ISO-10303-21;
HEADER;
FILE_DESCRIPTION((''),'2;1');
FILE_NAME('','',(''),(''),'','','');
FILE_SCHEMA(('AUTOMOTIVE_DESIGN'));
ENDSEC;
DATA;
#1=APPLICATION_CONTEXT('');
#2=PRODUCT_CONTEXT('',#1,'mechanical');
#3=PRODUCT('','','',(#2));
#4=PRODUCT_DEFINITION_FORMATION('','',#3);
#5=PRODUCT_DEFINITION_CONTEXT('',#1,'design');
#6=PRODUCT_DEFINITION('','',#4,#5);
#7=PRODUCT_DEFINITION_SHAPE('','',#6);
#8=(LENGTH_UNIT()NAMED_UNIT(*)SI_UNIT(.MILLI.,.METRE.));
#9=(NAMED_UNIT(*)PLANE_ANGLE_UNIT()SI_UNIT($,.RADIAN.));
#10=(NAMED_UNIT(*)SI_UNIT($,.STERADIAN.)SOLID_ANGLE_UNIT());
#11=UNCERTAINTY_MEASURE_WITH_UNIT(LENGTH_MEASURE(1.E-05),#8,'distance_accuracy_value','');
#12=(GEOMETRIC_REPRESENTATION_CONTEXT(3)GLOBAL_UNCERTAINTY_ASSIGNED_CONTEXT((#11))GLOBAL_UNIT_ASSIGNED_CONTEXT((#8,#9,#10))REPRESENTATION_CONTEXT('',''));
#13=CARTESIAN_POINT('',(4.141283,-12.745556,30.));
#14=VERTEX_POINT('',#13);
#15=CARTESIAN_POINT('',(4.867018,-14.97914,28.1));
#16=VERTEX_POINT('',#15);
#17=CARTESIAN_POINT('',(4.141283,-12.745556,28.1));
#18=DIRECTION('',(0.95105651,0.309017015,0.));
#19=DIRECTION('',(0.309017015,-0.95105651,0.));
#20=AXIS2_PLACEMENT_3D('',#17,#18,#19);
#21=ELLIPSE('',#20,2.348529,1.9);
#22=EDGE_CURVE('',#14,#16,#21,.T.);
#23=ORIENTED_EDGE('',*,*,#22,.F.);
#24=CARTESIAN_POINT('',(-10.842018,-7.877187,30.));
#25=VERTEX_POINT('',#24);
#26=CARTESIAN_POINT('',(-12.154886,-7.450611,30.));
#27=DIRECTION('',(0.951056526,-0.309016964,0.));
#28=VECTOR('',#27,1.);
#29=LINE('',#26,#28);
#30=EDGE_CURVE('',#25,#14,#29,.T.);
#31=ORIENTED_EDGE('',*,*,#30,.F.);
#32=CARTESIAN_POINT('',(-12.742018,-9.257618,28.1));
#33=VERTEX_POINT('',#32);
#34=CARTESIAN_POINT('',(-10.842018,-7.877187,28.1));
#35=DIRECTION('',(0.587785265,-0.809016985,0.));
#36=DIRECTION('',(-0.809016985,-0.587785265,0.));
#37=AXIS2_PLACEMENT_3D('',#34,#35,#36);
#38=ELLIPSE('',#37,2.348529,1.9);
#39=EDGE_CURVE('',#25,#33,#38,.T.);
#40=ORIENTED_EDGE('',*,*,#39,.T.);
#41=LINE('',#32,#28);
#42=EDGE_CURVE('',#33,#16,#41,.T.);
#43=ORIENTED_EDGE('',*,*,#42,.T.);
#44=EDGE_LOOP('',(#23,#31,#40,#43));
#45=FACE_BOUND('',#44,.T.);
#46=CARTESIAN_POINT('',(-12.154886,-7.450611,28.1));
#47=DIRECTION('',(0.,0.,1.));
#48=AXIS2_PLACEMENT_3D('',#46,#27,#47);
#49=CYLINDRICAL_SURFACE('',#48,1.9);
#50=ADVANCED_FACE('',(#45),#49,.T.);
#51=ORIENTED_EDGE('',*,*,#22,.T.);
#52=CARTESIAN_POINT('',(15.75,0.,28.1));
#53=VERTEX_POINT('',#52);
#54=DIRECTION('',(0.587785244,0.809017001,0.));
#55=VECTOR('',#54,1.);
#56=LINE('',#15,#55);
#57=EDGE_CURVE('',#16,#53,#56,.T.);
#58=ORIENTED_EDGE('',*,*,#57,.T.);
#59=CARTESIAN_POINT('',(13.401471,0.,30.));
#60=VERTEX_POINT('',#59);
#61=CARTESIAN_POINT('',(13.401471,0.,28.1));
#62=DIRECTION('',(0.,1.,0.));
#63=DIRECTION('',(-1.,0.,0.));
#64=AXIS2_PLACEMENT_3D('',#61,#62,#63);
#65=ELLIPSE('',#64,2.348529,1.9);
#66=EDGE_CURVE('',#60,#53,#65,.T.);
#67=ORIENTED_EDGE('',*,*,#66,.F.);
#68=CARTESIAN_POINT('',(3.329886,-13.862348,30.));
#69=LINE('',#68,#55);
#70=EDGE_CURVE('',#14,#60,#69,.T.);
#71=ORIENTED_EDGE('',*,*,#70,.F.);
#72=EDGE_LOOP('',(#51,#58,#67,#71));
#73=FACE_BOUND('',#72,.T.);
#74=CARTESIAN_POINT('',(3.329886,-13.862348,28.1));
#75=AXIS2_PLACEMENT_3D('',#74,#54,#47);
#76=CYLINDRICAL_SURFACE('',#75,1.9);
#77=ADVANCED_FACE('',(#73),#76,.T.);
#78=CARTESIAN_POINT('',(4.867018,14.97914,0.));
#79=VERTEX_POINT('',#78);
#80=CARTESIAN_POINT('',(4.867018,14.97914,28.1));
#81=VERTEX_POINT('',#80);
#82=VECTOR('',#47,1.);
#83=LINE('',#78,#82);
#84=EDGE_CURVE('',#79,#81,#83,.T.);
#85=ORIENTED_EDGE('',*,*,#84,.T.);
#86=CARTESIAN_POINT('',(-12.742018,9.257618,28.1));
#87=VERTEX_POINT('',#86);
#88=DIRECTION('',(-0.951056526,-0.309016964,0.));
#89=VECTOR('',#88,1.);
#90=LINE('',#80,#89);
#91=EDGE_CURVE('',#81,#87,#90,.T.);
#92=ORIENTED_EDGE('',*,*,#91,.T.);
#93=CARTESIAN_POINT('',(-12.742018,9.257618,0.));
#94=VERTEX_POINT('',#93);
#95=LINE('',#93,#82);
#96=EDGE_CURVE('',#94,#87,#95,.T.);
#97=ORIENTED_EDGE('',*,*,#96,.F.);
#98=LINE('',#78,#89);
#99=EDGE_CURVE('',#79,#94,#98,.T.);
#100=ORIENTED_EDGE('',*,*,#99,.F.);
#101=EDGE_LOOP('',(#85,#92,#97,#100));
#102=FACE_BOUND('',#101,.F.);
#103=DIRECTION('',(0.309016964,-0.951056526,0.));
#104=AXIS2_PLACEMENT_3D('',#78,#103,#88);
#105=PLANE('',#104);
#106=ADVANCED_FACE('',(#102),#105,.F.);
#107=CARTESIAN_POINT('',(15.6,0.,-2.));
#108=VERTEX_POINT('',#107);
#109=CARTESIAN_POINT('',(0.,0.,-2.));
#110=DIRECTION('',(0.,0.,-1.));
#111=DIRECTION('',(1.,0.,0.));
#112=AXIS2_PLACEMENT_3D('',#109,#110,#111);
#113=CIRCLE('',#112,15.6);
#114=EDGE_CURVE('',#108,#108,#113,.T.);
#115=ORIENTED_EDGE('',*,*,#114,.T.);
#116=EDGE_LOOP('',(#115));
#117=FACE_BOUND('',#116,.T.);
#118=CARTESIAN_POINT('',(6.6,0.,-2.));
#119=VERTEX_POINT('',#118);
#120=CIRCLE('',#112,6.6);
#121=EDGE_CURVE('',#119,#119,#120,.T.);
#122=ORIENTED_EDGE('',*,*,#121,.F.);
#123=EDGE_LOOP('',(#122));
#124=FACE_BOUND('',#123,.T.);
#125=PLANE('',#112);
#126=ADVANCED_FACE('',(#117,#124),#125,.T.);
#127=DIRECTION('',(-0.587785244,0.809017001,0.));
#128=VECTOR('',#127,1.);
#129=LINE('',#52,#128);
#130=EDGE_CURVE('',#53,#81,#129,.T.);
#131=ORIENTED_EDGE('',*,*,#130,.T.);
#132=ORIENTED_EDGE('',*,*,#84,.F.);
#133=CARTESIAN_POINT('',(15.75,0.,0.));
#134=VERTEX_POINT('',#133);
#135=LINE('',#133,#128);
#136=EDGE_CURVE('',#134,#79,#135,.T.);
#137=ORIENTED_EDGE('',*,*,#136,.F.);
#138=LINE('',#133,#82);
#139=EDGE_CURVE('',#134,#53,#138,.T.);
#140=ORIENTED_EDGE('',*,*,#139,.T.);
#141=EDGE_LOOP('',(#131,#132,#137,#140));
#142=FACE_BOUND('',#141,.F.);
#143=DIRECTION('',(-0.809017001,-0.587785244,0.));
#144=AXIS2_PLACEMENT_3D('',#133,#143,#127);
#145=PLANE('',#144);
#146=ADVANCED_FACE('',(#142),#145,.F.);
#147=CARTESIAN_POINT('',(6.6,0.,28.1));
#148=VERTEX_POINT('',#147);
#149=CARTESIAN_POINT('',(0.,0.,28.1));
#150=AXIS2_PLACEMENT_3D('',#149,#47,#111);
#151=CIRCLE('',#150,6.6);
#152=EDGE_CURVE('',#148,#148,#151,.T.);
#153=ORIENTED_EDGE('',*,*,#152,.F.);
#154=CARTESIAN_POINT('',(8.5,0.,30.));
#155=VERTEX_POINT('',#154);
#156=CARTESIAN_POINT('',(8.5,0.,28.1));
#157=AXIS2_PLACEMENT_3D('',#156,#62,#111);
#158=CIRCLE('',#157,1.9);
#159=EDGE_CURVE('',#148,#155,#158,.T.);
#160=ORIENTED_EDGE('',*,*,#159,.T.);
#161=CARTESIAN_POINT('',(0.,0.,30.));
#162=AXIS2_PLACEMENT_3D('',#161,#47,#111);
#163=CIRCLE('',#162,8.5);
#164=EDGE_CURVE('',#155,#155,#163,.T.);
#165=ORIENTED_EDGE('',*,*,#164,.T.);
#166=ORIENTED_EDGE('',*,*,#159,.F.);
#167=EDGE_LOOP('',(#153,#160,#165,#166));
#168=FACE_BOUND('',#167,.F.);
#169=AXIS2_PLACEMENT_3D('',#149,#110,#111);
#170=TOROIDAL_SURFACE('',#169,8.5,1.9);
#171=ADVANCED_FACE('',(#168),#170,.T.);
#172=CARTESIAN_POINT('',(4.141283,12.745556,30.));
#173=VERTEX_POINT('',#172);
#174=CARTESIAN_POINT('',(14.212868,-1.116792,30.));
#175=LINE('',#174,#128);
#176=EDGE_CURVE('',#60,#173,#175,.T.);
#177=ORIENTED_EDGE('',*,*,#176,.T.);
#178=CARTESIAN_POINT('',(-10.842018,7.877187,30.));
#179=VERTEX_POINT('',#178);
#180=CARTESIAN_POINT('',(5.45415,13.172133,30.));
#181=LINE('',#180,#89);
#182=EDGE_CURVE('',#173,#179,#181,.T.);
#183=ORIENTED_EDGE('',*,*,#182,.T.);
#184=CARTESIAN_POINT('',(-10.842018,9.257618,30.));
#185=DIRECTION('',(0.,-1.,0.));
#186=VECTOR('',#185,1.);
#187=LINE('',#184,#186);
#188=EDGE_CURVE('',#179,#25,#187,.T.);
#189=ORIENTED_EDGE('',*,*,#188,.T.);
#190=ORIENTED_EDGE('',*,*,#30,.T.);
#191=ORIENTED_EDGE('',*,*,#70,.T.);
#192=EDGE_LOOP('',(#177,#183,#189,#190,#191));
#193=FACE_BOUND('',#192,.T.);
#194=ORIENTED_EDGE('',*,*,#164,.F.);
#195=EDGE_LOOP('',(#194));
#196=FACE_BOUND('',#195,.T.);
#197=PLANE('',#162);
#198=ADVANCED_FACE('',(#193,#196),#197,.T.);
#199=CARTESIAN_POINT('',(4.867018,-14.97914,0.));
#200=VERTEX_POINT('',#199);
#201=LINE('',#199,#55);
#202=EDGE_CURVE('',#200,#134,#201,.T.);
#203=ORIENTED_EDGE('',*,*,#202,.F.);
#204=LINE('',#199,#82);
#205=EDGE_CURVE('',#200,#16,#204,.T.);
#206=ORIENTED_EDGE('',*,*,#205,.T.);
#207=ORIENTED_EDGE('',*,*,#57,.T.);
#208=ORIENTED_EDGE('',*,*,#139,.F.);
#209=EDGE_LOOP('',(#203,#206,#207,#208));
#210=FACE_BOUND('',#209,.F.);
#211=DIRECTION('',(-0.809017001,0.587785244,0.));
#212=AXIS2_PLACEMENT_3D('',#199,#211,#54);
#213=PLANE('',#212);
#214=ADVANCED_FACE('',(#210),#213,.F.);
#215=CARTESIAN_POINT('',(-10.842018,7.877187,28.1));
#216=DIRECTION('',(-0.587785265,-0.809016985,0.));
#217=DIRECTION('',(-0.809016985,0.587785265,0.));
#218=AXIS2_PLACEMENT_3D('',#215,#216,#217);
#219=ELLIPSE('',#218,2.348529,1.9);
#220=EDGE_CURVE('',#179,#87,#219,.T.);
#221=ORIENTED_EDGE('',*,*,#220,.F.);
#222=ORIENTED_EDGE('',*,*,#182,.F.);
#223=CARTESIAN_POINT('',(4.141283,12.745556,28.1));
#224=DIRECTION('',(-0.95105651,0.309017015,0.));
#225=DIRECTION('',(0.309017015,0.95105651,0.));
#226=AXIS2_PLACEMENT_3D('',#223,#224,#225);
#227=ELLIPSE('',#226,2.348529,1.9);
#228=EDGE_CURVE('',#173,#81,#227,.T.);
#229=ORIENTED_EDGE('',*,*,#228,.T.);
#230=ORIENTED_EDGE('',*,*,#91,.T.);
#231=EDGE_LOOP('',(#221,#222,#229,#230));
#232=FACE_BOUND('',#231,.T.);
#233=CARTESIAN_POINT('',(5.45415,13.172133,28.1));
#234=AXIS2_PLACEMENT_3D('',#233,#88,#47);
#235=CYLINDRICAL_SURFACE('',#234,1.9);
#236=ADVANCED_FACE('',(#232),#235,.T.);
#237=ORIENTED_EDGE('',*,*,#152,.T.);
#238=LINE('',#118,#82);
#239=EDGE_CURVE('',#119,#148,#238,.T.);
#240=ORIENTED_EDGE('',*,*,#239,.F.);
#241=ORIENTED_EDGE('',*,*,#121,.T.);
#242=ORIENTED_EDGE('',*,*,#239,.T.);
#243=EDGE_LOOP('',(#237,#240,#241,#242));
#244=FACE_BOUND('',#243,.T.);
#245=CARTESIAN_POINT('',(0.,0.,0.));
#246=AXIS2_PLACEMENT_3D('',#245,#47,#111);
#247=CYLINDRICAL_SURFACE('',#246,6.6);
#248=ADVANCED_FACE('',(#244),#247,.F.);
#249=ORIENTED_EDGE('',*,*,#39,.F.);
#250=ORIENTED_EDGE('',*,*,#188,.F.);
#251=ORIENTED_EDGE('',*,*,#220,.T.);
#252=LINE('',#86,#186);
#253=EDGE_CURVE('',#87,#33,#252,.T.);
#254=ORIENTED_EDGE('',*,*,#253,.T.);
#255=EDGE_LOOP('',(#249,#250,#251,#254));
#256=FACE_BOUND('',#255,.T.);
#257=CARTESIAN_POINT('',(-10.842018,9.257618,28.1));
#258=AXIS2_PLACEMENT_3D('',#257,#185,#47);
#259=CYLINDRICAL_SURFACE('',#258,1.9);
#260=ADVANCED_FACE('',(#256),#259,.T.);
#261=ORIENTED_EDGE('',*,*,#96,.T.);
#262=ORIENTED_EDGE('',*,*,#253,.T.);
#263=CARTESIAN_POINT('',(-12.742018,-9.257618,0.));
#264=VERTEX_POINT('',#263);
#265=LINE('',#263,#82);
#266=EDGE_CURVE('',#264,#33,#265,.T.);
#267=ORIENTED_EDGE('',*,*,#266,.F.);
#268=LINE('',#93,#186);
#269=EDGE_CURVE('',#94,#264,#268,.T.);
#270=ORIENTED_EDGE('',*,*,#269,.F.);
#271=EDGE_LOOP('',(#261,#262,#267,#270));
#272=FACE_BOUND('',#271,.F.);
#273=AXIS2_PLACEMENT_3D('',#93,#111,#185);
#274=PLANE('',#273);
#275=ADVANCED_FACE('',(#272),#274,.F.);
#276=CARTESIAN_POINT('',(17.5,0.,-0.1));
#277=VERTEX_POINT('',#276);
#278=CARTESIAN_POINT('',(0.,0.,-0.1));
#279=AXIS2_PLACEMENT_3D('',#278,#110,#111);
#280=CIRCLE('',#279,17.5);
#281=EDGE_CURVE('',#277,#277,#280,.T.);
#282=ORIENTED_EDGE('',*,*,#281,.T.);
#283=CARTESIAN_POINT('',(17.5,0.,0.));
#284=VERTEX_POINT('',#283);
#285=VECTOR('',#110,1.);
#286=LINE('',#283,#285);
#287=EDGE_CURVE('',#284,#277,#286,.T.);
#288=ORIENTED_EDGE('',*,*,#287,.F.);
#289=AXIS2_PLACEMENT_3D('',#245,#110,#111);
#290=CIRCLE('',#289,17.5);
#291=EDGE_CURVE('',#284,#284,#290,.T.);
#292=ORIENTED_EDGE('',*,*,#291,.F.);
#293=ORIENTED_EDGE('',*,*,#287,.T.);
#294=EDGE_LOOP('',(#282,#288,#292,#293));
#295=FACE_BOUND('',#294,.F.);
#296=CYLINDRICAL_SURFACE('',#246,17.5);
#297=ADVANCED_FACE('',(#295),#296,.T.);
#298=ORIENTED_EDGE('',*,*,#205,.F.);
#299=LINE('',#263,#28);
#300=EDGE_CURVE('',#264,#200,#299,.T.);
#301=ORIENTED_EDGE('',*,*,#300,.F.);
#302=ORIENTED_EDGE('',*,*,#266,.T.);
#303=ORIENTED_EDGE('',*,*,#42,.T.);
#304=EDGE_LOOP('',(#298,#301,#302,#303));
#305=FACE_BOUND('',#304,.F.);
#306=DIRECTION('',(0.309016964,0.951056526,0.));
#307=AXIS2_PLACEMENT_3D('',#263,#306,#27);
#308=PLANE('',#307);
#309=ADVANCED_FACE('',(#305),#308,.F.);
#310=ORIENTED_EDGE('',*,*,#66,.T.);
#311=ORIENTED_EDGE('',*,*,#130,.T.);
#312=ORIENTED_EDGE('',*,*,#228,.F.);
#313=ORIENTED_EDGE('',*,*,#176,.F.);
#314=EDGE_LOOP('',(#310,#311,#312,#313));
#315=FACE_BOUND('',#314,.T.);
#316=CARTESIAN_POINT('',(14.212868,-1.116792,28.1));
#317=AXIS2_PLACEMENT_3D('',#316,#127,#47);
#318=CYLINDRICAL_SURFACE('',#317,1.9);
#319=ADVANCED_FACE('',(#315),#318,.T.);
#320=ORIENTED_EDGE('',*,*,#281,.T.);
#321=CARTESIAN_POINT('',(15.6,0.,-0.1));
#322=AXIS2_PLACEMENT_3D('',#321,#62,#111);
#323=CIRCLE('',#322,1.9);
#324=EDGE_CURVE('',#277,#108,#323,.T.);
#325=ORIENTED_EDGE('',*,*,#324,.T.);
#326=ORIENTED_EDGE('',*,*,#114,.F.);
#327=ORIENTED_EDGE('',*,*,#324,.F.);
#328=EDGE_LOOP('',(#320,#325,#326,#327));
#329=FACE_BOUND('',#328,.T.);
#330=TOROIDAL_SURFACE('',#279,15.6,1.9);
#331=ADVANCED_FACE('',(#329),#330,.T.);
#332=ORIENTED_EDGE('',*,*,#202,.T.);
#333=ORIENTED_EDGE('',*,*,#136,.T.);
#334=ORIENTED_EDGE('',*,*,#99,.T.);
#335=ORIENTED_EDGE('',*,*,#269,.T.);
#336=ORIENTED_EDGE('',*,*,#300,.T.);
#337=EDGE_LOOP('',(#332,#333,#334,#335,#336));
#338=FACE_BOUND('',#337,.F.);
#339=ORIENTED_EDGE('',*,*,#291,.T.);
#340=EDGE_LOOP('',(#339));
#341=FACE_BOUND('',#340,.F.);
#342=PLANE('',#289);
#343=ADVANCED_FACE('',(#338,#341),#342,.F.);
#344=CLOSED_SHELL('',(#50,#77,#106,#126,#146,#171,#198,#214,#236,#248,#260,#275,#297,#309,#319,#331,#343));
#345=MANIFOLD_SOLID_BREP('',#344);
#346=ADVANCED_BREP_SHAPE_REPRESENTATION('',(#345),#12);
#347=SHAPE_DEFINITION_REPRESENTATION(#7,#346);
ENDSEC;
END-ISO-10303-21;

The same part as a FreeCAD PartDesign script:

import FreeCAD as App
import Part
import Sketcher

V = App.Vector
Q = App.Units.Quantity


def edges_at(feature, points):
    """Names of the edges that pass closest to the given points."""
    edges = feature.Shape.Edges
    near = lambda p: min(range(len(edges)), key=lambda i: edges[i].distToShape(Part.Vertex(*p))[0])
    return sorted({f"Edge{near(p) + 1}" for p in points})

doc = App.newDocument("Part")
params = doc.addObject("Spreadsheet::Sheet", "Params")
for row, (alias, value) in enumerate([
    ("sketch1_diameter", "13.2 mm"),
    ("pad1_length", "30 mm"),
    ("sketch2_diameter", "35 mm"),
    ("sketch2_diameter2", "13.2 mm"),
    ("pad2_length", "2 mm"),
    ("fillet_radius", "1.9 mm"),
], start=1):
    params.set(f"A{row}", alias)
    params.set(f"B{row}", "=" + value)
    params.setAlias(f"B{row}", alias)

body = doc.addObject("PartDesign::Body", "Body")

# Sketch on XY plane
sketch1 = body.newObject("Sketcher::SketchObject", "Sketch")
sketch1.AttachmentSupport = (doc.getObject("XY_Plane"), [""])
sketch1.MapMode = "FlatFace"
sketch1.addGeometry([
    Part.LineSegment(V(16, 0, 0), V(5, 15, 0)),  # 0
    Part.LineSegment(V(5, 15, 0), V(-13, 9, 0)),  # 1
    Part.LineSegment(V(-13, 9, 0), V(-13, -9, 0)),  # 2
    Part.LineSegment(V(-13, -9, 0), V(5, -15, 0)),  # 3
    Part.LineSegment(V(5, -15, 0), V(16, 0, 0)),  # 4
    Part.Circle(V(0, 0, 0), V(0, 0, 1), 7),  # 5
], False)
sketch1.addConstraint([
    Sketcher.Constraint("Coincident", 0, 2, 1, 1),
    Sketcher.Constraint("Coincident", 1, 2, 2, 1),
    Sketcher.Constraint("Coincident", 2, 2, 3, 1),
    Sketcher.Constraint("Coincident", 3, 2, 4, 1),
    Sketcher.Constraint("Coincident", 4, 2, 0, 1),
    Sketcher.Constraint("Vertical", 2),
    Sketcher.Constraint("Coincident", 5, 3, -1, 1),
    Sketcher.Constraint("Symmetric", 0, 2, 3, 2, -1),
    Sketcher.Constraint("PointOnObject", 4, 2, -1),
    Sketcher.Constraint("Equal", 0, 1),
    Sketcher.Constraint("Equal", 1, 3),
    Sketcher.Constraint("Diameter", 5, Q("13.2 mm")),
    Sketcher.Constraint("Angle", 0, Q("125.999999 deg")),
    Sketcher.Constraint("Angle", 1, Q("-162.000002 deg")),
    Sketcher.Constraint("DistanceX", -1, 1, 4, 2, Q("15.75 mm")),
    Sketcher.Constraint("DistanceY", 2, 2, 2, 1, Q("18.515236 mm")),
])
sketch1.setExpression("Constraints[11]", "Params.sketch1_diameter")
pad1 = body.newObject("PartDesign::Pad", "Pad")
pad1.Profile = sketch1
pad1.setExpression("Length", "Params.pad1_length")

# Sketch on XY plane
sketch2 = body.newObject("Sketcher::SketchObject", "Sketch001")
sketch2.AttachmentSupport = (doc.getObject("XY_Plane"), [""])
sketch2.MapMode = "FlatFace"
sketch2.addGeometry([
    Part.Circle(V(0, 0, 0), V(0, 0, 1), 18),
    Part.Circle(V(0, 0, 0), V(0, 0, 1), 7),
], False)
sketch2.addConstraint([
    Sketcher.Constraint("Coincident", 0, 3, -1, 1),
    Sketcher.Constraint("Coincident", 1, 3, -1, 1),
    Sketcher.Constraint("Diameter", 0, Q("35 mm")),
    Sketcher.Constraint("Diameter", 1, Q("13.2 mm")),
])
sketch2.setExpression("Constraints[2]", "Params.sketch2_diameter")
sketch2.setExpression("Constraints[3]", "Params.sketch2_diameter2")
pad2 = body.newObject("PartDesign::Pad", "Pad001")
pad2.Profile = sketch2
pad2.setExpression("Length", "Params.pad2_length")
pad2.Reversed = True
doc.recompute()

fillet = body.newObject("PartDesign::Fillet", "Fillet")
fillet.Base = (pad2, edges_at(pad2, [
    (10.309, 7.49, 30),
    (-3.938, 12.118, 30),
    (-12.742, 0, 30),
    (-3.938, -12.118, 30),
    (10.309, -7.49, 30),
    (-6.6, 0, 30),
    (-17.5, 0, -2),
]))
fillet.setExpression("Radius", "Params.fillet_radius")

doc.recompute()
